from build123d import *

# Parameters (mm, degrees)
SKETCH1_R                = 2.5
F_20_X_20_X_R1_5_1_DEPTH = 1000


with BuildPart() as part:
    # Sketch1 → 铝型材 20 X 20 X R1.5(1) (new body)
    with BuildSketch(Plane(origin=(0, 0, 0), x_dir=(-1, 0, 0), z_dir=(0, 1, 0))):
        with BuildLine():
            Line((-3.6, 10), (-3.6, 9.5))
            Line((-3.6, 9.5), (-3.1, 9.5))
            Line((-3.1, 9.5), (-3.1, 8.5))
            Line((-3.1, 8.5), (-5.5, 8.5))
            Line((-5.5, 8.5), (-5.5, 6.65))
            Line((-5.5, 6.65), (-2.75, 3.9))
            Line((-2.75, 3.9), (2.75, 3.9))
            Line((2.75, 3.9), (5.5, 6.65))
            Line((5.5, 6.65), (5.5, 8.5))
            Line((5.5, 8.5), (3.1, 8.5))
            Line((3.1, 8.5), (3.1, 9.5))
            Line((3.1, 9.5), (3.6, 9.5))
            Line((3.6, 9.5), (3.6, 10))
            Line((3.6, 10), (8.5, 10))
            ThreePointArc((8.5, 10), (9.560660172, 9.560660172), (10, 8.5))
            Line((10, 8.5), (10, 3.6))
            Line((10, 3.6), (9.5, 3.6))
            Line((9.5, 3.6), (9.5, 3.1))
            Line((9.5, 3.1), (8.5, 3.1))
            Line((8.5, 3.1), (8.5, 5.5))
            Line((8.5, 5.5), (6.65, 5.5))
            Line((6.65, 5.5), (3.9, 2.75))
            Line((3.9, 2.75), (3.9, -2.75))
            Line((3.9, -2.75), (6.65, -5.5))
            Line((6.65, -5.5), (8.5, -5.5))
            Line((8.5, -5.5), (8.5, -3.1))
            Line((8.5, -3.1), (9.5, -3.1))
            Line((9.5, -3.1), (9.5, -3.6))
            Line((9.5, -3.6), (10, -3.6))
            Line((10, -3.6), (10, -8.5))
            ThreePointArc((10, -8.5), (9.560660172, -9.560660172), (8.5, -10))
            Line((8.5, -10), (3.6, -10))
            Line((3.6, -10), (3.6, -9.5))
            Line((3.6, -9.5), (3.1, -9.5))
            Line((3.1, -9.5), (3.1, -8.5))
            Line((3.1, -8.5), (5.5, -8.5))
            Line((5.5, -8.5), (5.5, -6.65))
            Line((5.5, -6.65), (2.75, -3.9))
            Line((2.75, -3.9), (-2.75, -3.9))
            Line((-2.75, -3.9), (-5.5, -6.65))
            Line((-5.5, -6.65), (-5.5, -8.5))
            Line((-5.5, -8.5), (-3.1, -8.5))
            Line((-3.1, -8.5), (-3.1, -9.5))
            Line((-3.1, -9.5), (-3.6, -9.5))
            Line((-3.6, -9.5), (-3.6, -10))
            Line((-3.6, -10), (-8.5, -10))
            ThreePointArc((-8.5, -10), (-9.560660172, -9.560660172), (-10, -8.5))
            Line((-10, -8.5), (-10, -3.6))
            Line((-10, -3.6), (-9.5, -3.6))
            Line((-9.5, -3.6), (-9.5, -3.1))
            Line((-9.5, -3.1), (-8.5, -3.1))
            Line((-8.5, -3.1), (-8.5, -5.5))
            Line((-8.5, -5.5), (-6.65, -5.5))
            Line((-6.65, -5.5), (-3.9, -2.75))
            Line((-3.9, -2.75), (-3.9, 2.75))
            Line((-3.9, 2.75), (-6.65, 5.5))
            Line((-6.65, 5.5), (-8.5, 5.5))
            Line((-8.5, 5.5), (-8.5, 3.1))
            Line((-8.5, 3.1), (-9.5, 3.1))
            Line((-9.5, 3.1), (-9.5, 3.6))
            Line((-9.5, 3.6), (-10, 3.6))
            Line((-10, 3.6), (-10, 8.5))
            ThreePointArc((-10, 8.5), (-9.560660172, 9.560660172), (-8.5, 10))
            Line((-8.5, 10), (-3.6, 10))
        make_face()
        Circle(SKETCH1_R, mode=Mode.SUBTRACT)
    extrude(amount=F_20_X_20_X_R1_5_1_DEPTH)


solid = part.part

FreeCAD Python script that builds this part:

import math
import FreeCAD as App
import Part
import Sketcher
from FreeCAD import Vector
Q = App.Units.Quantity

doc = App.newDocument("Part")
body = doc.addObject("PartDesign::Body", "Body")

# Sketch on XZ plane
sketch1 = doc.addObject("Sketcher::SketchObject", "Sketch")
body.addObject(sketch1)
sketch1.AttachmentSupport = (doc.XZ_Plane, [""])
sketch1.MapMode = "FlatFace"
sketch1.addGeometry([
    Part.LineSegment(Vector(3.6, 9.5, 0), Vector(3.6, 10, 0)),  # 0
    Part.LineSegment(Vector(3.6, 10, 0), Vector(8.5, 10, 0)),  # 1
    Part.ArcOfCircle(Part.Circle(Vector(8.5, 8.5, 0), Vector(0, 0, 1), 1.5), math.radians(0), math.radians(90)),  # 2
    Part.LineSegment(Vector(10, 8.5, 0), Vector(10, 3.6, 0)),  # 3
    Part.LineSegment(Vector(10, 3.6, 0), Vector(9.5, 3.6, 0)),  # 4
    Part.LineSegment(Vector(9.5, 3.6, 0), Vector(9.5, 3.1, 0)),  # 5
    Part.LineSegment(Vector(9.5, 3.1, 0), Vector(8.5, 3.1, 0)),  # 6
    Part.LineSegment(Vector(8.5, 3.1, 0), Vector(8.5, 5.5, 0)),  # 7
    Part.LineSegment(Vector(8.5, 5.5, 0), Vector(6.7, 5.5, 0)),  # 8
    Part.LineSegment(Vector(6.7, 5.5, 0), Vector(3.9, 2.8, 0)),  # 9
    Part.LineSegment(Vector(3.9, 2.8, 0), Vector(3.9, -2.8, 0)),  # 10
    Part.LineSegment(Vector(3.9, -2.8, 0), Vector(6.7, -5.5, 0)),  # 11
    Part.LineSegment(Vector(6.7, -5.5, 0), Vector(8.5, -5.5, 0)),  # 12
    Part.LineSegment(Vector(8.5, -5.5, 0), Vector(8.5, -3.1, 0)),  # 13
    Part.LineSegment(Vector(8.5, -3.1, 0), Vector(9.5, -3.1, 0)),  # 14
    Part.LineSegment(Vector(9.5, -3.1, 0), Vector(9.5, -3.6, 0)),  # 15
    Part.LineSegment(Vector(9.5, -3.6, 0), Vector(10, -3.6, 0)),  # 16
    Part.LineSegment(Vector(10, -3.6, 0), Vector(10, -8.5, 0)),  # 17
    Part.ArcOfCircle(Part.Circle(Vector(8.5, -8.5, 0), Vector(0, 0, 1), 1.5), math.radians(-90), math.radians(0)),  # 18
    Part.LineSegment(Vector(8.5, -10, 0), Vector(3.6, -10, 0)),  # 19
    Part.LineSegment(Vector(3.6, -10, 0), Vector(3.6, -9.5, 0)),  # 20
    Part.LineSegment(Vector(3.6, -9.5, 0), Vector(3.1, -9.5, 0)),  # 21
    Part.LineSegment(Vector(3.1, -9.5, 0), Vector(3.1, -8.5, 0)),  # 22
    Part.LineSegment(Vector(3.1, -8.5, 0), Vector(5.5, -8.5, 0)),  # 23
    Part.LineSegment(Vector(5.5, -8.5, 0), Vector(5.5, -6.7, 0)),  # 24
    Part.LineSegment(Vector(5.5, -6.7, 0), Vector(2.8, -3.9, 0)),  # 25
    Part.LineSegment(Vector(2.8, -3.9, 0), Vector(-2.8, -3.9, 0)),  # 26
    Part.LineSegment(Vector(-2.8, -3.9, 0), Vector(-5.5, -6.7, 0)),  # 27
    Part.LineSegment(Vector(-5.5, -6.7, 0), Vector(-5.5, -8.5, 0)),  # 28
    Part.LineSegment(Vector(-5.5, -8.5, 0), Vector(-3.1, -8.5, 0)),  # 29
    Part.LineSegment(Vector(-3.1, -8.5, 0), Vector(-3.1, -9.5, 0)),  # 30
    Part.LineSegment(Vector(-3.1, -9.5, 0), Vector(-3.6, -9.5, 0)),  # 31
    Part.LineSegment(Vector(-3.6, -9.5, 0), Vector(-3.6, -10, 0)),  # 32
    Part.LineSegment(Vector(-3.6, -10, 0), Vector(-8.5, -10, 0)),  # 33
    Part.ArcOfCircle(Part.Circle(Vector(-8.5, -8.5, 0), Vector(0, 0, 1), 1.5), math.radians(180), math.radians(270)),  # 34
    Part.LineSegment(Vector(-10, -8.5, 0), Vector(-10, -3.6, 0)),  # 35
    Part.LineSegment(Vector(-10, -3.6, 0), Vector(-9.5, -3.6, 0)),  # 36
    Part.LineSegment(Vector(-9.5, -3.6, 0), Vector(-9.5, -3.1, 0)),  # 37
    Part.LineSegment(Vector(-9.5, -3.1, 0), Vector(-8.5, -3.1, 0)),  # 38
    Part.LineSegment(Vector(-8.5, -3.1, 0), Vector(-8.5, -5.5, 0)),  # 39
    Part.LineSegment(Vector(-8.5, -5.5, 0), Vector(-6.7, -5.5, 0)),  # 40
    Part.LineSegment(Vector(-6.7, -5.5, 0), Vector(-3.9, -2.8, 0)),  # 41
    Part.LineSegment(Vector(-3.9, -2.8, 0), Vector(-3.9, 2.8, 0)),  # 42
    Part.LineSegment(Vector(-3.9, 2.8, 0), Vector(-6.7, 5.5, 0)),  # 43
    Part.LineSegment(Vector(-6.7, 5.5, 0), Vector(-8.5, 5.5, 0)),  # 44
    Part.LineSegment(Vector(-8.5, 5.5, 0), Vector(-8.5, 3.1, 0)),  # 45
    Part.LineSegment(Vector(-8.5, 3.1, 0), Vector(-9.5, 3.1, 0)),  # 46
    Part.LineSegment(Vector(-9.5, 3.1, 0), Vector(-9.5, 3.6, 0)),  # 47
    Part.LineSegment(Vector(-9.5, 3.6, 0), Vector(-10, 3.6, 0)),  # 48
    Part.LineSegment(Vector(-10, 3.6, 0), Vector(-10, 8.5, 0)),  # 49
    Part.ArcOfCircle(Part.Circle(Vector(-8.5, 8.5, 0), Vector(0, 0, 1), 1.5), math.radians(90), math.radians(180)),  # 50
    Part.LineSegment(Vector(-8.5, 10, 0), Vector(-3.6, 10, 0)),  # 51
    Part.LineSegment(Vector(-3.6, 10, 0), Vector(-3.6, 9.5, 0)),  # 52
    Part.LineSegment(Vector(-3.6, 9.5, 0), Vector(-3.1, 9.5, 0)),  # 53
    Part.LineSegment(Vector(-3.1, 9.5, 0), Vector(-3.1, 8.5, 0)),  # 54
    Part.LineSegment(Vector(-3.1, 8.5, 0), Vector(-5.5, 8.5, 0)),  # 55
    Part.LineSegment(Vector(-5.5, 8.5, 0), Vector(-5.5, 6.7, 0)),  # 56
    Part.LineSegment(Vector(-5.5, 6.7, 0), Vector(-2.8, 3.9, 0)),  # 57
    Part.LineSegment(Vector(-2.8, 3.9, 0), Vector(2.8, 3.9, 0)),  # 58
    Part.LineSegment(Vector(2.8, 3.9, 0), Vector(5.5, 6.7, 0)),  # 59
    Part.LineSegment(Vector(5.5, 6.7, 0), Vector(5.5, 8.5, 0)),  # 60
    Part.LineSegment(Vector(5.5, 8.5, 0), Vector(3.1, 8.5, 0)),  # 61
    Part.LineSegment(Vector(3.1, 8.5, 0), Vector(3.1, 9.5, 0)),  # 62
    Part.LineSegment(Vector(3.1, 9.5, 0), Vector(3.6, 9.5, 0)),  # 63
    Part.Circle(Vector(0, 0, 0), Vector(0, 0, 1), 2.5),  # 64
], False)
sketch1.addConstraint([
    Sketcher.Constraint("Coincident", 0, 2, 1, 1),
    Sketcher.Constraint("Tangent", 1, 2, 2, 2),
    Sketcher.Constraint("Tangent", 2, 1, 3, 1),
    Sketcher.Constraint("Coincident", 3, 2, 4, 1),
    Sketcher.Constraint("Coincident", 4, 2, 5, 1),
    Sketcher.Constraint("Coincident", 5, 2, 6, 1),
    Sketcher.Constraint("Coincident", 6, 2, 7, 1),
    Sketcher.Constraint("Coincident", 7, 2, 8, 1),
    Sketcher.Constraint("Coincident", 8, 2, 9, 1),
    Sketcher.Constraint("Coincident", 9, 2, 10, 1),
    Sketcher.Constraint("Coincident", 10, 2, 11, 1),
    Sketcher.Constraint("Coincident", 11, 2, 12, 1),
    Sketcher.Constraint("Coincident", 12, 2, 13, 1),
    Sketcher.Constraint("Coincident", 13, 2, 14, 1),
    Sketcher.Constraint("Coincident", 14, 2, 15, 1),
    Sketcher.Constraint("Coincident", 15, 2, 16, 1),
    Sketcher.Constraint("Coincident", 16, 2, 17, 1),
    Sketcher.Constraint("Tangent", 17, 2, 18, 2),
    Sketcher.Constraint("Tangent", 18, 1, 19, 1),
    Sketcher.Constraint("Coincident", 19, 2, 20, 1),
    Sketcher.Constraint("Coincident", 20, 2, 21, 1),
    Sketcher.Constraint("Coincident", 21, 2, 22, 1),
    Sketcher.Constraint("Coincident", 22, 2, 23, 1),
    Sketcher.Constraint("Coincident", 23, 2, 24, 1),
    Sketcher.Constraint("Coincident", 24, 2, 25, 1),
    Sketcher.Constraint("Coincident", 25, 2, 26, 1),
    Sketcher.Constraint("Coincident", 26, 2, 27, 1),
    Sketcher.Constraint("Coincident", 27, 2, 28, 1),
    Sketcher.Constraint("Coincident", 28, 2, 29, 1),
    Sketcher.Constraint("Coincident", 29, 2, 30, 1),
    Sketcher.Constraint("Coincident", 30, 2, 31, 1),
    Sketcher.Constraint("Coincident", 31, 2, 32, 1),
    Sketcher.Constraint("Coincident", 32, 2, 33, 1),
    Sketcher.Constraint("Tangent", 33, 2, 34, 2),
    Sketcher.Constraint("Tangent", 34, 1, 35, 1),
    Sketcher.Constraint("Coincident", 35, 2, 36, 1),
    Sketcher.Constraint("Coincident", 36, 2, 37, 1),
    Sketcher.Constraint("Coincident", 37, 2, 38, 1),
    Sketcher.Constraint("Coincident", 38, 2, 39, 1),
    Sketcher.Constraint("Coincident", 39, 2, 40, 1),
    Sketcher.Constraint("Coincident", 40, 2, 41, 1),
    Sketcher.Constraint("Coincident", 41, 2, 42, 1),
    Sketcher.Constraint("Coincident", 42, 2, 43, 1),
    Sketcher.Constraint("Coincident", 43, 2, 44, 1),
    Sketcher.Constraint("Coincident", 44, 2, 45, 1),
    Sketcher.Constraint("Coincident", 45, 2, 46, 1),
    Sketcher.Constraint("Coincident", 46, 2, 47, 1),
    Sketcher.Constraint("Coincident", 47, 2, 48, 1),
    Sketcher.Constraint("Coincident", 48, 2, 49, 1),
    Sketcher.Constraint("Tangent", 49, 2, 50, 2),
    Sketcher.Constraint("Tangent", 50, 1, 51, 1),
    Sketcher.Constraint("Coincident", 51, 2, 52, 1),
    Sketcher.Constraint("Coincident", 52, 2, 53, 1),
    Sketcher.Constraint("Coincident", 53, 2, 54, 1),
    Sketcher.Constraint("Coincident", 54, 2, 55, 1),
    Sketcher.Constraint("Coincident", 55, 2, 56, 1),
    Sketcher.Constraint("Coincident", 56, 2, 57, 1),
    Sketcher.Constraint("Coincident", 57, 2, 58, 1),
    Sketcher.Constraint("Coincident", 58, 2, 59, 1),
    Sketcher.Constraint("Coincident", 59, 2, 60, 1),
    Sketcher.Constraint("Coincident", 60, 2, 61, 1),
    Sketcher.Constraint("Coincident", 61, 2, 62, 1),
    Sketcher.Constraint("Coincident", 62, 2, 63, 1),
    Sketcher.Constraint("Coincident", 63, 2, 0, 1),
    Sketcher.Constraint("Vertical", 0),
    Sketcher.Constraint("Horizontal", 1),
    Sketcher.Constraint("Vertical", 3),
    Sketcher.Constraint("Horizontal", 4),
    Sketcher.Constraint("Vertical", 5),
    Sketcher.Constraint("Horizontal", 6),
    Sketcher.Constraint("Vertical", 7),
    Sketcher.Constraint("Horizontal", 8),
    Sketcher.Constraint("Vertical", 10),
    Sketcher.Constraint("Horizontal", 12),
    Sketcher.Constraint("Vertical", 13),
    Sketcher.Constraint("Horizontal", 14),
    Sketcher.Constraint("Vertical", 15),
    Sketcher.Constraint("Horizontal", 16),
    Sketcher.Constraint("Vertical", 17),
    Sketcher.Constraint("Horizontal", 19),
    Sketcher.Constraint("Vertical", 20),
    Sketcher.Constraint("Horizontal", 21),
    Sketcher.Constraint("Vertical", 22),
    Sketcher.Constraint("Horizontal", 23),
    Sketcher.Constraint("Vertical", 24),
    Sketcher.Constraint("Horizontal", 26),
    Sketcher.Constraint("Vertical", 28),
    Sketcher.Constraint("Horizontal", 29),
    Sketcher.Constraint("Vertical", 30),
    Sketcher.Constraint("Horizontal", 31),
    Sketcher.Constraint("Vertical", 32),
    Sketcher.Constraint("Horizontal", 33),
    Sketcher.Constraint("Vertical", 35),
    Sketcher.Constraint("Horizontal", 36),
    Sketcher.Constraint("Vertical", 37),
    Sketcher.Constraint("Horizontal", 38),
    Sketcher.Constraint("Vertical", 39),
    Sketcher.Constraint("Horizontal", 40),
    Sketcher.Constraint("Vertical", 42),
    Sketcher.Constraint("Horizontal", 44),
    Sketcher.Constraint("Vertical", 45),
    Sketcher.Constraint("Horizontal", 46),
    Sketcher.Constraint("Vertical", 47),
    Sketcher.Constraint("Horizontal", 48),
    Sketcher.Constraint("Vertical", 49),
    Sketcher.Constraint("Horizontal", 51),
    Sketcher.Constraint("Vertical", 52),
    Sketcher.Constraint("Horizontal", 53),
    Sketcher.Constraint("Vertical", 54),
    Sketcher.Constraint("Horizontal", 55),
    Sketcher.Constraint("Vertical", 56),
    Sketcher.Constraint("Horizontal", 58),
    Sketcher.Constraint("Vertical", 60),
    Sketcher.Constraint("Horizontal", 61),
    Sketcher.Constraint("Vertical", 62),
    Sketcher.Constraint("Horizontal", 63),
    Sketcher.Constraint("Coincident", 64, 3, -1, 1),
    Sketcher.Constraint("Equal", 2, 18),
    Sketcher.Constraint("Equal", 18, 34),
    Sketcher.Constraint("Equal", 34, 50),
    Sketcher.Constraint("Symmetric", 2, 3, 34, 3, -1, 1),
    Sketcher.Constraint("Symmetric", 18, 3, 50, 3, -1, 1),
    Sketcher.Constraint("Symmetric", 4, 2, 36, 2, -1, 1),
    Sketcher.Constraint("Symmetric", 6, 2, 38, 2, -1, 1),
    Sketcher.Constraint("Symmetric", 8, 2, 40, 2, -1, 1),
    Sketcher.Constraint("Symmetric", 9, 2, 41, 2, -1, 1),
    Sketcher.Constraint("Symmetric", 11, 2, 43, 2, -1, 1),
    Sketcher.Constraint("Symmetric", 13, 2, 45, 2, -1, 1),
    Sketcher.Constraint("Symmetric", 15, 2, 47, 2, -1, 1),
    Sketcher.Constraint("Symmetric", 20, 2, 52, 2, -1, 1),
    Sketcher.Constraint("Symmetric", 22, 2, 54, 2, -1, 1),
    Sketcher.Constraint("Symmetric", 24, 2, 56, 2, -1, 1),
    Sketcher.Constraint("Symmetric", 25, 2, 57, 2, -1, 1),
    Sketcher.Constraint("Symmetric", 27, 2, 59, 2, -1, 1),
    Sketcher.Constraint("Symmetric", 29, 2, 61, 2, -1, 1),
    Sketcher.Constraint("Symmetric", 31, 2, 63, 2, -1, 1),
    Sketcher.Constraint("Symmetric", 18, 3, 34, 3, -2),
    Sketcher.Constraint("Symmetric", 24, 2, 27, 2, -2),
    Sketcher.Constraint("Symmetric", 22, 2, 29, 2, -2),
    Sketcher.Constraint("Symmetric", 20, 2, 31, 2, -2),
    Sketcher.Constraint("Symmetric", 15, 2, 36, 2, -2),
    Sketcher.Constraint("Symmetric", 13, 2, 38, 2, -2),
    Sketcher.Constraint("Symmetric", 11, 2, 40, 2, -2),
    Sketcher.Constraint("Perpendicular", 9, 11),
    Sketcher.Constraint("Parallel", 11, 25),
    Sketcher.Constraint("Perpendicular", 25, 27),
    Sketcher.Constraint("Perpendicular", 41, 43),
    Sketcher.Constraint("Perpendicular", 57, 59),
    Sketcher.Constraint("Horizontal", 17, 2, 22, 2),
    Sketcher.Constraint("Horizontal", 10, 2, 41, 2),
    Sketcher.Constraint("Vertical", 1, 2, 6, 2),
    Sketcher.Constraint("Equal", 16, 21),
    Sketcher.Constraint("Equal", 63, 0),
    Sketcher.Constraint("Equal", 51, 3),
    Sketcher.Constraint("Equal", 0, 5),
    Sketcher.Constraint("Equal", 61, 7),
    Sketcher.Constraint("Equal", 58, 10),
    Sketcher.Constraint("Equal", 44, 24),
    Sketcher.Constraint("Equal", 11, 25),
    Sketcher.Constraint("Diameter", 64, Q("5 mm")),
    Sketcher.Constraint("Radius", 2, Q("1.5 mm")),
    Sketcher.Constraint("DistanceX", 6, 2, 6, 1, Q("1 mm")),
    Sketcher.Constraint("DistanceX", 1, 1, 1, 2, Q("4.9 mm")),
    Sketcher.Constraint("DistanceX", 23, 1, 23, 2, Q("2.4 mm")),
    Sketcher.Constraint("DistanceX", 26, 2, 26, 1, Q("5.5 mm")),
    Sketcher.Constraint("DistanceY", -1, 1, 0, 2, Q("10 mm")),
    Sketcher.Constraint("DistanceX", 8, 2, 8, 1, Q("1.85 mm")),
])
pad1 = doc.addObject("PartDesign::Pad", "Pad")
body.addObject(pad1)
pad1.Profile = sketch1
pad1.Length = 1000
pad1.Reversed = True

doc.recompute()
